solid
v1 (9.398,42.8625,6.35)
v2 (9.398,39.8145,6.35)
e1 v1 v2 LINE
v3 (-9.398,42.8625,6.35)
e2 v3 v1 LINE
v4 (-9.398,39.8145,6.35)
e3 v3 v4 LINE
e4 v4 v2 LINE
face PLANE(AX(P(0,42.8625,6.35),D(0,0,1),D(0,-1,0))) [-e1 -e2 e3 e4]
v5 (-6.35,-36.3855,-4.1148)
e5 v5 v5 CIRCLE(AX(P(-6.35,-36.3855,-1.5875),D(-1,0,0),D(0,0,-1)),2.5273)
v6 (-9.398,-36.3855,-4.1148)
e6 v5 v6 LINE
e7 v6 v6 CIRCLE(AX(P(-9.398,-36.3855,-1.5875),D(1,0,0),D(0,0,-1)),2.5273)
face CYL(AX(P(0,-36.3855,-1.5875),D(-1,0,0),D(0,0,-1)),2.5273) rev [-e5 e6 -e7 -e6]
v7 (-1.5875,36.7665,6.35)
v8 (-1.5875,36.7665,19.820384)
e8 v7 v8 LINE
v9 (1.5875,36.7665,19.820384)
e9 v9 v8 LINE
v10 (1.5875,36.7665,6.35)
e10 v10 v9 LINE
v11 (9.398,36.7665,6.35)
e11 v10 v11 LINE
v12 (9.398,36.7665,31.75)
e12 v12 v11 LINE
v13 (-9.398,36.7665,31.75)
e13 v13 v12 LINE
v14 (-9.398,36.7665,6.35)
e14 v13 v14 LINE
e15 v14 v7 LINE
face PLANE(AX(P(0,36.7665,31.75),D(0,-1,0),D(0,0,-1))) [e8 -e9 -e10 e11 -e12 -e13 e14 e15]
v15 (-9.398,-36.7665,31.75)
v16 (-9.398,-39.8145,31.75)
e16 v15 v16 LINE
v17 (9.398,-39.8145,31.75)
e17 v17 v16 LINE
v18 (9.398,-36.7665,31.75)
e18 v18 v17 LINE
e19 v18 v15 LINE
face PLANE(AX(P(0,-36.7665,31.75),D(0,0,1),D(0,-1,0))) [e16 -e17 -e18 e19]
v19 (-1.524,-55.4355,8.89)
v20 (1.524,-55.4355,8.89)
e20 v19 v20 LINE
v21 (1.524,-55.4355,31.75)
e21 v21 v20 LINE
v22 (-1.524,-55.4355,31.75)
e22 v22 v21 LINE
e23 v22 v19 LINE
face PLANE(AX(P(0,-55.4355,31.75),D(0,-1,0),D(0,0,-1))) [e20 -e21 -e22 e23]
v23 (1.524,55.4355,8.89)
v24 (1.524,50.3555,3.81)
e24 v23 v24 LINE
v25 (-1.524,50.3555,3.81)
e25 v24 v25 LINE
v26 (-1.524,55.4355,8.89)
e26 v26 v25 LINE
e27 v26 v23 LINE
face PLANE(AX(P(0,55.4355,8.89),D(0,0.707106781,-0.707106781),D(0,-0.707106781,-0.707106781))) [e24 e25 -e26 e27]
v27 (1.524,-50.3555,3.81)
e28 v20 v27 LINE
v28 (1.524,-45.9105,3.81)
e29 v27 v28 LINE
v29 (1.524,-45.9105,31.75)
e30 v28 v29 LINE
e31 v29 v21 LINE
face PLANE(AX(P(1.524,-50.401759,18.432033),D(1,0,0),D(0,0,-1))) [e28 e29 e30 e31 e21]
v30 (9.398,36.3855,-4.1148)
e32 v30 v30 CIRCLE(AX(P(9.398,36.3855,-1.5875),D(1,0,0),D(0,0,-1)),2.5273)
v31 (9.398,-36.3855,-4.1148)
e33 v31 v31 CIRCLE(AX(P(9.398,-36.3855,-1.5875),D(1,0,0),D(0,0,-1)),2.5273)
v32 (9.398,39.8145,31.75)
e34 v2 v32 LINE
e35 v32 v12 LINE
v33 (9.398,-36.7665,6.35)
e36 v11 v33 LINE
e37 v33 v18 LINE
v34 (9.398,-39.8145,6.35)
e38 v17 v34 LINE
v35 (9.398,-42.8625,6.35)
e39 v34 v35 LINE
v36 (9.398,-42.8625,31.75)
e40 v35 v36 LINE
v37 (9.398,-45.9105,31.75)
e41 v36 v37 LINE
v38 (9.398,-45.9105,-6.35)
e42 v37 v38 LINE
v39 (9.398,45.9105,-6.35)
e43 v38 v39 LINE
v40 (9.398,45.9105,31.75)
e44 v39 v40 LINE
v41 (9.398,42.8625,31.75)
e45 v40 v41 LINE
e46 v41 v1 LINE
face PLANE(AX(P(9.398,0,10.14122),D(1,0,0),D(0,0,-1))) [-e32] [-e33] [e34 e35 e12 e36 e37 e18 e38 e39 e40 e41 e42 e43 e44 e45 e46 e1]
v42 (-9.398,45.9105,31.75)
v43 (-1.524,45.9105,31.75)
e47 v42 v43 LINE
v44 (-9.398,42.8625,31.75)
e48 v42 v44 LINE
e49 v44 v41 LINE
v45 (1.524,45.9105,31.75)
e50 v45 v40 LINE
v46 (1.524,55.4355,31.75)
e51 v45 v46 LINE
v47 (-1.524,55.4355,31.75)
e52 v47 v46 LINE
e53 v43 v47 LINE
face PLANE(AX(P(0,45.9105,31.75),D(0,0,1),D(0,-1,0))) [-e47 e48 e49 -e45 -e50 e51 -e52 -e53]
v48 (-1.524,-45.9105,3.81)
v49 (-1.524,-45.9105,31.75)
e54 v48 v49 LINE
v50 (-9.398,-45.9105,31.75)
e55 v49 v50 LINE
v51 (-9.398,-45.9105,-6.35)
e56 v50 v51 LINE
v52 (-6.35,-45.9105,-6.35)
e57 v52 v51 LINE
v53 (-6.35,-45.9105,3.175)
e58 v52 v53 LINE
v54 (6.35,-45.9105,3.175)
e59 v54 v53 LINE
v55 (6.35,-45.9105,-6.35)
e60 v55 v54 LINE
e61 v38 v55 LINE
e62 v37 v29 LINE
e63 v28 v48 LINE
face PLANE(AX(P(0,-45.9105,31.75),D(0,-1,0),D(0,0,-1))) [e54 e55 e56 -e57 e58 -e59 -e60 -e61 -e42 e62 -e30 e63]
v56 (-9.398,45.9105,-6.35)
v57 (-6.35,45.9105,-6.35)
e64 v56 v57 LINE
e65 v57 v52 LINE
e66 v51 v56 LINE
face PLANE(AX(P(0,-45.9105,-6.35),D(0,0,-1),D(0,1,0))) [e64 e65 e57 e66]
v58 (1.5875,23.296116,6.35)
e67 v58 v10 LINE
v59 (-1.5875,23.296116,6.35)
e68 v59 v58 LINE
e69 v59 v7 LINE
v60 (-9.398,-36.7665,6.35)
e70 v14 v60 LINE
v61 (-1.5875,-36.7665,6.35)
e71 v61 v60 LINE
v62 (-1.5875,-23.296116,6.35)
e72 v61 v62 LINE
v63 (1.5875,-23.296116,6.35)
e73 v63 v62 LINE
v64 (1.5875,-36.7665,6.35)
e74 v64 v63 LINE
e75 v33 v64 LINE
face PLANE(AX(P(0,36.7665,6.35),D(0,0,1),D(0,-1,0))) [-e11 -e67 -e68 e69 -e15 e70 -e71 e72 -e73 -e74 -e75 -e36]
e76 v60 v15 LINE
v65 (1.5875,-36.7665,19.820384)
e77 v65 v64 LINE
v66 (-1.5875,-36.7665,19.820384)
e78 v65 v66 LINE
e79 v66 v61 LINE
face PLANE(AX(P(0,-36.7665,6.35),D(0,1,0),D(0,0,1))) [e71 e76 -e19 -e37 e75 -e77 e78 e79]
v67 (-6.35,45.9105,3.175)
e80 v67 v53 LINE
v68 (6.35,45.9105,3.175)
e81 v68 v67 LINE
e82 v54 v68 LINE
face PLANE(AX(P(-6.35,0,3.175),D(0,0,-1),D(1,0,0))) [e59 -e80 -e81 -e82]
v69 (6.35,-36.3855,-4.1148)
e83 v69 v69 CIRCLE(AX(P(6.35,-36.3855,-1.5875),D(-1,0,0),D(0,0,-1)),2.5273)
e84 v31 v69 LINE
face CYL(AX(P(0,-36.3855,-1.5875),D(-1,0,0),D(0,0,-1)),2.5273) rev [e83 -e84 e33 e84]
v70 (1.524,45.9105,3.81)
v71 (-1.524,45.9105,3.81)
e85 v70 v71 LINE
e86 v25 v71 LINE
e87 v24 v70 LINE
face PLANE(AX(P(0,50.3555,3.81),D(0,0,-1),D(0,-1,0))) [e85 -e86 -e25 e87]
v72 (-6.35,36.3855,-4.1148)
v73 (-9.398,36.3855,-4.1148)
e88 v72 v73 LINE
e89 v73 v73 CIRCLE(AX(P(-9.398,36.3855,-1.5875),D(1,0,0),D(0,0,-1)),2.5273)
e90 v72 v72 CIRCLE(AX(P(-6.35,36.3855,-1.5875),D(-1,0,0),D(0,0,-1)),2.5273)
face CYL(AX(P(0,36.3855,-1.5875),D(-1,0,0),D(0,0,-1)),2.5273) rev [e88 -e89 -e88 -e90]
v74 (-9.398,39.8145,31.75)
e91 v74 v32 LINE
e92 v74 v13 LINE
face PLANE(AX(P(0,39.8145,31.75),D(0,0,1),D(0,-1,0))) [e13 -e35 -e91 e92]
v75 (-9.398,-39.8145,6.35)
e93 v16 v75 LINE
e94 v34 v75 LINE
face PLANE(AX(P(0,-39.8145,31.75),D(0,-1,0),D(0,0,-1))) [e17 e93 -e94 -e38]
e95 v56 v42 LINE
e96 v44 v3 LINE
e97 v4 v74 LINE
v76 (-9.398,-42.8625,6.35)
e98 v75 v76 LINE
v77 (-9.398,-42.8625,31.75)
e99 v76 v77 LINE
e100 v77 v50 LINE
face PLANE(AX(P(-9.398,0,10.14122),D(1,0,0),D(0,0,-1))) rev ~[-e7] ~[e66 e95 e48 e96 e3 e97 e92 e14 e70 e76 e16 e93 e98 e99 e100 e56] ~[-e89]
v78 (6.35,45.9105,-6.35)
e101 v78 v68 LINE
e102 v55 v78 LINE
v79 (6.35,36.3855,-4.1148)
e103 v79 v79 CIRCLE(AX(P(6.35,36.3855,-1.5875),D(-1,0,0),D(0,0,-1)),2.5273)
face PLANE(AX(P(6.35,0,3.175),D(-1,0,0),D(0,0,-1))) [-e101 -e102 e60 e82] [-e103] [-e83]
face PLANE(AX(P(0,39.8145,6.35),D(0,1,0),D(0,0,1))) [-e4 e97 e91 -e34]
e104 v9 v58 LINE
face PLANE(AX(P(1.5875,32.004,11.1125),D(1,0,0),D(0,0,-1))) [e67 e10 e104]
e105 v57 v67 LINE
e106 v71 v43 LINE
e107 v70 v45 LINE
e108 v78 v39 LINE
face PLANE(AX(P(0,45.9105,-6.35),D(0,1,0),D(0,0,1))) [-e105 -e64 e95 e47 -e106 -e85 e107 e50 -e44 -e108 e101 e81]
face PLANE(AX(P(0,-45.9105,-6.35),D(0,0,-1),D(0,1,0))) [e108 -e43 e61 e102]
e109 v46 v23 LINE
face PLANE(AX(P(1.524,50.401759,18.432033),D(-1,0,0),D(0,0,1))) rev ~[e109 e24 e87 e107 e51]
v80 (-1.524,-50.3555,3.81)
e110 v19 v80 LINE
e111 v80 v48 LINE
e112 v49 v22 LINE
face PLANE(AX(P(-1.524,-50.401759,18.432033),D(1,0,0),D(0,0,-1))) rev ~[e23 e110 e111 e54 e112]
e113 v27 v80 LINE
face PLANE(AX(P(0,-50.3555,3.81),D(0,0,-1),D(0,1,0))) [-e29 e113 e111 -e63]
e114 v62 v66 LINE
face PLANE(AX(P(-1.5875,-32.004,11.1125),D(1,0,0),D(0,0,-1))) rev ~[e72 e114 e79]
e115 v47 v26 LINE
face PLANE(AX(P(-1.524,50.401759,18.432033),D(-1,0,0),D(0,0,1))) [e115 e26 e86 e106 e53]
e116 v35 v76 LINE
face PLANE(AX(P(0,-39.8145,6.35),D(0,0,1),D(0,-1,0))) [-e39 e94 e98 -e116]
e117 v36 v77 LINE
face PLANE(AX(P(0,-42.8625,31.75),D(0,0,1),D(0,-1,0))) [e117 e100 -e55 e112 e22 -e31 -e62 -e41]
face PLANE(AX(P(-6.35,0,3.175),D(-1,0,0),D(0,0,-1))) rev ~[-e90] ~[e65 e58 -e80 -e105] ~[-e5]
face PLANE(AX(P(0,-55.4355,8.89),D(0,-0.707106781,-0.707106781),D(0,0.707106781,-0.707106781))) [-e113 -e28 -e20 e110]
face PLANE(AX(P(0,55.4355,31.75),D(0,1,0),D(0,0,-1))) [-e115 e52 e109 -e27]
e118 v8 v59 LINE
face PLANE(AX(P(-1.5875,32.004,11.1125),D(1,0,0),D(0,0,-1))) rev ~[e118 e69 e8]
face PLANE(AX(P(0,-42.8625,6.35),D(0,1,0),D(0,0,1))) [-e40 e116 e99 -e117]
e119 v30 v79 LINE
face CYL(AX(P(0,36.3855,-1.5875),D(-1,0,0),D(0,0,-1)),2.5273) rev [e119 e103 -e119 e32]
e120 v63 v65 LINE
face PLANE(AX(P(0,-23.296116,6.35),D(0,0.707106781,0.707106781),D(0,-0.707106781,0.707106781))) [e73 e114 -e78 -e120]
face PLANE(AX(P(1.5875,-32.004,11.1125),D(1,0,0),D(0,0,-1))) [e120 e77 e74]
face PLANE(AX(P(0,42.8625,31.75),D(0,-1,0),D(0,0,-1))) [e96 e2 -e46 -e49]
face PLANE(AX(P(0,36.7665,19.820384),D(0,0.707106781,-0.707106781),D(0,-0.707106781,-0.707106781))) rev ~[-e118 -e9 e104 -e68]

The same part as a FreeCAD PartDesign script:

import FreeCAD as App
import Part
import Sketcher

V = App.Vector
Q = App.Units.Quantity

doc = App.newDocument("Part")
params = doc.addObject("Spreadsheet::Sheet", "Params")
for row, (alias, value) in enumerate([
    ("sketch1_height", "1 in"),
    ("sketch1_diameter", "0.199 in"),
    ("sketch1_height2", "1.5 in"),
    ("sketch1_width", "0.12 in"),
    ("sketch1_width2", "3.615 in"),
    ("pad1_length", "0.74 in"),
    ("sketch2_height", "0.9 in"),
    ("sketch2_height2", "1.1 in"),
    ("sketch2_width", "0.375 in"),
    ("pad2_length", "0.12 in"),
    ("sketch3_length", "0.75 in"),
    ("pad3_length", "0.125 in"),
    ("sketch4_width", "0.5 in"),
    ("sketch4_height", "0.375 in"),
], start=1):
    params.set(f"A{row}", alias)
    params.set(f"B{row}", "=" + value)
    params.setAlias(f"B{row}", alias)

body = doc.addObject("PartDesign::Body", "Body")

sketch1 = body.newObject("Sketcher::SketchObject", "Sketch")
sketch1.AttachmentSupport = (doc.getObject("YZ_Plane"), [""])
sketch1.MapMode = "FlatFace"
sketch1.addGeometry(Part.LineSegment(V(-45.9105, -6.35, 0), V(45.9105, -6.35, 0)), False)
sketch1.addGeometry(Part.LineSegment(V(45.9105, -6.35, 0), V(45.9105, 31.75, 0)), False)
sketch1.addGeometry(Part.LineSegment(V(45.9105, 31.75, 0), V(42.8625, 31.75, 0)), False)
sketch1.addGeometry(Part.LineSegment(V(42.8625, 31.75, 0), V(42.8625, 6.35, 0)), False)
sketch1.addGeometry(Part.LineSegment(V(42.8625, 6.35, 0), V(39.8145, 6.35, 0)), False)
sketch1.addGeometry(Part.LineSegment(V(39.8145, 6.35, 0), V(39.8145, 31.75, 0)), False)
sketch1.addGeometry(Part.LineSegment(V(39.8145, 31.75, 0), V(36.7665, 31.75, 0)), False)
sketch1.addGeometry(Part.LineSegment(V(36.7665, 31.75, 0), V(36.7665, 6.35, 0)), False)
sketch1.addGeometry(Part.LineSegment(V(36.7665, 6.35, 0), V(-36.7665, 6.35, 0)), False)
sketch1.addGeometry(Part.LineSegment(V(-36.7665, 6.35, 0), V(-36.7665, 31.75, 0)), False)
sketch1.addGeometry(Part.LineSegment(V(-36.7665, 31.75, 0), V(-39.8145, 31.75, 0)), False)
sketch1.addGeometry(Part.LineSegment(V(-39.8145, 31.75, 0), V(-39.8145, 6.35, 0)), False)
sketch1.addGeometry(Part.LineSegment(V(-39.8145, 6.35, 0), V(-42.8625, 6.35, 0)), False)
sketch1.addGeometry(Part.LineSegment(V(-42.8625, 6.35, 0), V(-42.8625, 31.75, 0)), False)
sketch1.addGeometry(Part.LineSegment(V(-42.8625, 31.75, 0), V(-45.9105, 31.75, 0)), False)
sketch1.addGeometry(Part.LineSegment(V(-45.9105, 31.75, 0), V(-45.9105, -6.35, 0)), False)
sketch1.addGeometry(Part.Circle(V(-36.3855, -1.5875, 0), V(0, 0, 1), 2.5273), False)
sketch1.addGeometry(Part.Circle(V(36.3855, -1.5875, 0), V(0, 0, 1), 2.5273), False)
sketch1.addConstraint(Sketcher.Constraint("Coincident", 0, 2, 1, 1))
sketch1.addConstraint(Sketcher.Constraint("Coincident", 1, 2, 2, 1))
sketch1.addConstraint(Sketcher.Constraint("Coincident", 2, 2, 3, 1))
sketch1.addConstraint(Sketcher.Constraint("Coincident", 3, 2, 4, 1))
sketch1.addConstraint(Sketcher.Constraint("Coincident", 4, 2, 5, 1))
sketch1.addConstraint(Sketcher.Constraint("Coincident", 5, 2, 6, 1))
sketch1.addConstraint(Sketcher.Constraint("Coincident", 6, 2, 7, 1))
sketch1.addConstraint(Sketcher.Constraint("Coincident", 7, 2, 8, 1))
sketch1.addConstraint(Sketcher.Constraint("Coincident", 8, 2, 9, 1))
sketch1.addConstraint(Sketcher.Constraint("Coincident", 9, 2, 10, 1))
sketch1.addConstraint(Sketcher.Constraint("Coincident", 10, 2, 11, 1))
sketch1.addConstraint(Sketcher.Constraint("Coincident", 11, 2, 12, 1))
sketch1.addConstraint(Sketcher.Constraint("Coincident", 12, 2, 13, 1))
sketch1.addConstraint(Sketcher.Constraint("Coincident", 13, 2, 14, 1))
sketch1.addConstraint(Sketcher.Constraint("Coincident", 14, 2, 15, 1))
sketch1.addConstraint(Sketcher.Constraint("Coincident", 15, 2, 0, 1))
sketch1.addConstraint(Sketcher.Constraint("Horizontal", 0))
sketch1.addConstraint(Sketcher.Constraint("Vertical", 1))
sketch1.addConstraint(Sketcher.Constraint("Horizontal", 2))
sketch1.addConstraint(Sketcher.Constraint("Vertical", 3))
sketch1.addConstraint(Sketcher.Constraint("Horizontal", 4))
sketch1.addConstraint(Sketcher.Constraint("Vertical", 5))
sketch1.addConstraint(Sketcher.Constraint("Horizontal", 6))
sketch1.addConstraint(Sketcher.Constraint("Vertical", 7))
sketch1.addConstraint(Sketcher.Constraint("Horizontal", 8))
sketch1.addConstraint(Sketcher.Constraint("Vertical", 9))
sketch1.addConstraint(Sketcher.Constraint("Horizontal", 10))
sketch1.addConstraint(Sketcher.Constraint("Vertical", 11))
sketch1.addConstraint(Sketcher.Constraint("Horizontal", 12))
sketch1.addConstraint(Sketcher.Constraint("Vertical", 13))
sketch1.addConstraint(Sketcher.Constraint("Horizontal", 14))
sketch1.addConstraint(Sketcher.Constraint("Vertical", 15))
sketch1.addConstraint(Sketcher.Constraint("Equal", 16, 17))
sketch1.addConstraint(Sketcher.Constraint("Symmetric", 16, 3, 17, 3, -2))
sketch1.addConstraint(Sketcher.Constraint("Symmetric", 6, 2, 9, 2, -2))
sketch1.addConstraint(Sketcher.Constraint("Symmetric", 4, 2, 11, 2, -2))
sketch1.addConstraint(Sketcher.Constraint("Symmetric", 2, 2, 13, 2, -2))
sketch1.addConstraint(Sketcher.Constraint("Horizontal", 2, 2, 5, 2))
sketch1.addConstraint(Sketcher.Constraint("Horizontal", 4, 2, 7, 2))
sketch1.addConstraint(Sketcher.Constraint("Equal", 2, 4))
sketch1.addConstraint(Sketcher.Constraint("Equal", 4, 6))
sketch1.addConstraint(Sketcher.Constraint("Equal", 12, 14))
sketch1.addConstraint(Sketcher.Constraint("DistanceY", 3, 2, 3, 1, Q("1 in")))
sketch1.addConstraint(Sketcher.Constraint("Diameter", 16, Q("0.199 in")))
sketch1.addConstraint(Sketcher.Constraint("DistanceY", 1, 1, 1, 2, Q("1.5 in")))
sketch1.addConstraint(Sketcher.Constraint("DistanceX", 2, 2, 2, 1, Q("0.12 in")))
sketch1.addConstraint(Sketcher.Constraint("DistanceX", 0, 1, 0, 2, Q("3.615 in")))
sketch1.addConstraint(Sketcher.Constraint("DistanceY", 0, 2, -1, 1, Q("0.25 in")))
sketch1.addConstraint(Sketcher.Constraint("DistanceX", 16, 3, 0, 2, Q("3.24 in")))
sketch1.addConstraint(Sketcher.Constraint("DistanceY", 16, 3, -1, 1, Q("0.0625 in")))
sketch1.setExpression("Constraints[42]", "Params.sketch1_height")
sketch1.setExpression("Constraints[43]", "Params.sketch1_diameter")
sketch1.setExpression("Constraints[44]", "Params.sketch1_height2")
sketch1.setExpression("Constraints[45]", "Params.sketch1_width")
sketch1.setExpression("Constraints[46]", "Params.sketch1_width2")
pad1 = body.newObject("PartDesign::Pad", "Pad")
pad1.Profile = sketch1
pad1.setExpression("Length", "Params.pad1_length")
pad1.Midplane = True

sketch2 = body.newObject("Sketcher::SketchObject", "Sketch001")
sketch2.AttachmentSupport = (doc.getObject("YZ_Plane"), [""])
sketch2.MapMode = "FlatFace"
sketch2.addGeometry(Part.LineSegment(V(50.3555, 3.81, 0), V(55.4355, 8.89, 0)), False)
sketch2.addGeometry(Part.LineSegment(V(55.4355, 8.89, 0), V(55.4355, 31.75, 0)), False)
sketch2.addGeometry(Part.LineSegment(V(55.4355, 31.75, 0), V(45.9105, 31.75, 0)), False)
sketch2.addGeometry(Part.LineSegment(V(45.9105, 31.75, 0), V(45.9105, 3.81, 0)), False)
sketch2.addGeometry(Part.LineSegment(V(45.9105, 3.81, 0), V(50.3555, 3.81, 0)), False)
sketch2.addGeometry(Part.LineSegment(V(-45.9105, 31.75, 0), V(-55.4355, 31.75, 0)), False)
sketch2.addGeometry(Part.LineSegment(V(-55.4355, 31.75, 0), V(-55.4355, 8.89, 0)), False)
sketch2.addGeometry(Part.LineSegment(V(-55.4355, 8.89, 0), V(-50.3555, 3.81, 0)), False)
sketch2.addGeometry(Part.LineSegment(V(-50.3555, 3.81, 0), V(-45.9105, 3.81, 0)), False)
sketch2.addGeometry(Part.LineSegment(V(-45.9105, 3.81, 0), V(-45.9105, 31.75, 0)), False)
sketch2.addConstraint(Sketcher.Constraint("Coincident", 0, 2, 1, 1))
sketch2.addConstraint(Sketcher.Constraint("Coincident", 1, 2, 2, 1))
sketch2.addConstraint(Sketcher.Constraint("Coincident", 2, 2, 3, 1))
sketch2.addConstraint(Sketcher.Constraint("Coincident", 3, 2, 4, 1))
sketch2.addConstraint(Sketcher.Constraint("Coincident", 4, 2, 0, 1))
sketch2.addConstraint(Sketcher.Constraint("Coincident", 5, 2, 6, 1))
sketch2.addConstraint(Sketcher.Constraint("Coincident", 6, 2, 7, 1))
sketch2.addConstraint(Sketcher.Constraint("Coincident", 7, 2, 8, 1))
sketch2.addConstraint(Sketcher.Constraint("Coincident", 8, 2, 9, 1))
sketch2.addConstraint(Sketcher.Constraint("Coincident", 9, 2, 5, 1))
sketch2.addConstraint(Sketcher.Constraint("Vertical", 1))
sketch2.addConstraint(Sketcher.Constraint("Horizontal", 2))
sketch2.addConstraint(Sketcher.Constraint("Vertical", 3))
sketch2.addConstraint(Sketcher.Constraint("Horizontal", 4))
sketch2.addConstraint(Sketcher.Constraint("Horizontal", 5))
sketch2.addConstraint(Sketcher.Constraint("Vertical", 6))
sketch2.addConstraint(Sketcher.Constraint("Horizontal", 8))
sketch2.addConstraint(Sketcher.Constraint("Vertical", 9))
sketch2.addConstraint(Sketcher.Constraint("Symmetric", 1, 2, 5, 2, -2))
sketch2.addConstraint(Sketcher.Constraint("Symmetric", 4, 2, 7, 2, -2))
sketch2.addConstraint(Sketcher.Constraint("Perpendicular", 0, 7))
sketch2.addConstraint(Sketcher.Constraint("Horizontal", 0, 2, 6, 2))
sketch2.addConstraint(Sketcher.Constraint("Equal", 2, 5))
sketch2.addConstraint(Sketcher.Constraint("DistanceY", 1, 1, 1, 2, Q("0.9 in")))
sketch2.addConstraint(Sketcher.Constraint("DistanceY", 3, 2, 3, 1, Q("1.1 in")))
sketch2.addConstraint(Sketcher.Constraint("DistanceX", 2, 2, 2, 1, Q("0.375 in")))
sketch2.addConstraint(Sketcher.Constraint("DistanceY", -1, 1, 0, 2, Q("0.35 in")))
sketch2.addConstraint(Sketcher.Constraint("DistanceX", 5, 2, 2, 2, Q("3.99 in")))
sketch2.setExpression("Constraints[23]", "Params.sketch2_height")
sketch2.setExpression("Constraints[24]", "Params.sketch2_height2")
sketch2.setExpression("Constraints[25]", "Params.sketch2_width")
pad2 = body.newObject("PartDesign::Pad", "Pad001")
pad2.Profile = sketch2
pad2.setExpression("Length", "Params.pad2_length")
pad2.Midplane = True

sketch3 = body.newObject("Sketcher::SketchObject", "Sketch002")
sketch3.AttachmentSupport = (doc.getObject("YZ_Plane"), [""])
sketch3.MapMode = "FlatFace"
sketch3.addGeometry(Part.LineSegment(V(36.7665, 19.820384, 0), V(23.296116, 6.35, 0)), False)
sketch3.addGeometry(Part.LineSegment(V(23.296116, 6.35, 0), V(36.7665, 6.35, 0)), False)
sketch3.addGeometry(Part.LineSegment(V(36.7665, 6.35, 0), V(36.7665, 19.820384, 0)), False)
sketch3.addGeometry(Part.LineSegment(V(-36.7665, 19.820384, 0), V(-36.7665, 6.35, 0)), False)
sketch3.addGeometry(Part.LineSegment(V(-36.7665, 6.35, 0), V(-23.296116, 6.35, 0)), False)
sketch3.addGeometry(Part.LineSegment(V(-23.296116, 6.35, 0), V(-36.7665, 19.820384, 0)), False)
sketch3.addConstraint(Sketcher.Constraint("Coincident", 0, 2, 1, 1))
sketch3.addConstraint(Sketcher.Constraint("Coincident", 1, 2, 2, 1))
sketch3.addConstraint(Sketcher.Constraint("Coincident", 2, 2, 0, 1))
sketch3.addConstraint(Sketcher.Constraint("Coincident", 3, 2, 4, 1))
sketch3.addConstraint(Sketcher.Constraint("Coincident", 4, 2, 5, 1))
sketch3.addConstraint(Sketcher.Constraint("Coincident", 5, 2, 3, 1))
sketch3.addConstraint(Sketcher.Constraint("Horizontal", 1))
sketch3.addConstraint(Sketcher.Constraint("Vertical", 2))
sketch3.addConstraint(Sketcher.Constraint("Vertical", 3))
sketch3.addConstraint(Sketcher.Constraint("Horizontal", 4))
sketch3.addConstraint(Sketcher.Constraint("Symmetric", 1, 2, 3, 2, -2))
sketch3.addConstraint(Sketcher.Constraint("Perpendicular", 0, 5))
sketch3.addConstraint(Sketcher.Constraint("Horizontal", 2, 2, 5, 2))
sketch3.addConstraint(Sketcher.Constraint("Equal", 1, 4))
sketch3.addConstraint(Sketcher.Constraint("Distance", 0, Q("0.75 in")))
sketch3.addConstraint(Sketcher.Constraint("DistanceY", -1, 1, 0, 2, Q("0.25 in")))
sketch3.addConstraint(Sketcher.Constraint("DistanceX", 3, 2, 1, 2, Q("2.895 in")))
sketch3.setExpression("Constraints[14]", "Params.sketch3_length")
pad3 = body.newObject("PartDesign::Pad", "Pad002")
pad3.Profile = sketch3
pad3.setExpression("Length", "Params.pad3_length")
pad3.Midplane = True

sketch4 = body.newObject("Sketcher::SketchObject", "Sketch003")
sketch4.AttachmentSupport = (doc.getObject("XZ_Plane"), [""])
sketch4.MapMode = "FlatFace"
sketch4.addGeometry(Part.LineSegment(V(-6.35, -6.35, 0), V(-6.35, 3.175, 0)), False)
sketch4.addGeometry(Part.LineSegment(V(-6.35, 3.175, 0), V(6.35, 3.175, 0)), False)
sketch4.addGeometry(Part.LineSegment(V(6.35, 3.175, 0), V(6.35, -6.35, 0)), False)
sketch4.addGeometry(Part.LineSegment(V(6.35, -6.35, 0), V(-6.35, -6.35, 0)), False)
sketch4.addConstraint(Sketcher.Constraint("Coincident", 0, 2, 1, 1))
sketch4.addConstraint(Sketcher.Constraint("Coincident", 1, 2, 2, 1))
sketch4.addConstraint(Sketcher.Constraint("Coincident", 2, 2, 3, 1))
sketch4.addConstraint(Sketcher.Constraint("Coincident", 3, 2, 0, 1))
sketch4.addConstraint(Sketcher.Constraint("Vertical", 0))
sketch4.addConstraint(Sketcher.Constraint("Horizontal", 1))
sketch4.addConstraint(Sketcher.Constraint("Vertical", 2))
sketch4.addConstraint(Sketcher.Constraint("Horizontal", 3))
sketch4.addConstraint(Sketcher.Constraint("DistanceX", 1, 1, 1, 2, Q("0.5 in")))
sketch4.addConstraint(Sketcher.Constraint("DistanceY", 0, 1, 0, 2, Q("0.375 in")))
sketch4.addConstraint(Sketcher.Constraint("DistanceX", 0, 2, -1, 1, Q("0.25 in")))
sketch4.addConstraint(Sketcher.Constraint("DistanceY", 2, 2, -1, 1, Q("0.25 in")))
sketch4.setExpression("Constraints[8]", "Params.sketch4_width")
sketch4.setExpression("Constraints[9]", "Params.sketch4_height")
pocket1 = body.newObject("PartDesign::Pocket", "Pocket")
pocket1.Profile = sketch4
pocket1.Type = "ThroughAll"
pocket1.Midplane = True

doc.recompute()
